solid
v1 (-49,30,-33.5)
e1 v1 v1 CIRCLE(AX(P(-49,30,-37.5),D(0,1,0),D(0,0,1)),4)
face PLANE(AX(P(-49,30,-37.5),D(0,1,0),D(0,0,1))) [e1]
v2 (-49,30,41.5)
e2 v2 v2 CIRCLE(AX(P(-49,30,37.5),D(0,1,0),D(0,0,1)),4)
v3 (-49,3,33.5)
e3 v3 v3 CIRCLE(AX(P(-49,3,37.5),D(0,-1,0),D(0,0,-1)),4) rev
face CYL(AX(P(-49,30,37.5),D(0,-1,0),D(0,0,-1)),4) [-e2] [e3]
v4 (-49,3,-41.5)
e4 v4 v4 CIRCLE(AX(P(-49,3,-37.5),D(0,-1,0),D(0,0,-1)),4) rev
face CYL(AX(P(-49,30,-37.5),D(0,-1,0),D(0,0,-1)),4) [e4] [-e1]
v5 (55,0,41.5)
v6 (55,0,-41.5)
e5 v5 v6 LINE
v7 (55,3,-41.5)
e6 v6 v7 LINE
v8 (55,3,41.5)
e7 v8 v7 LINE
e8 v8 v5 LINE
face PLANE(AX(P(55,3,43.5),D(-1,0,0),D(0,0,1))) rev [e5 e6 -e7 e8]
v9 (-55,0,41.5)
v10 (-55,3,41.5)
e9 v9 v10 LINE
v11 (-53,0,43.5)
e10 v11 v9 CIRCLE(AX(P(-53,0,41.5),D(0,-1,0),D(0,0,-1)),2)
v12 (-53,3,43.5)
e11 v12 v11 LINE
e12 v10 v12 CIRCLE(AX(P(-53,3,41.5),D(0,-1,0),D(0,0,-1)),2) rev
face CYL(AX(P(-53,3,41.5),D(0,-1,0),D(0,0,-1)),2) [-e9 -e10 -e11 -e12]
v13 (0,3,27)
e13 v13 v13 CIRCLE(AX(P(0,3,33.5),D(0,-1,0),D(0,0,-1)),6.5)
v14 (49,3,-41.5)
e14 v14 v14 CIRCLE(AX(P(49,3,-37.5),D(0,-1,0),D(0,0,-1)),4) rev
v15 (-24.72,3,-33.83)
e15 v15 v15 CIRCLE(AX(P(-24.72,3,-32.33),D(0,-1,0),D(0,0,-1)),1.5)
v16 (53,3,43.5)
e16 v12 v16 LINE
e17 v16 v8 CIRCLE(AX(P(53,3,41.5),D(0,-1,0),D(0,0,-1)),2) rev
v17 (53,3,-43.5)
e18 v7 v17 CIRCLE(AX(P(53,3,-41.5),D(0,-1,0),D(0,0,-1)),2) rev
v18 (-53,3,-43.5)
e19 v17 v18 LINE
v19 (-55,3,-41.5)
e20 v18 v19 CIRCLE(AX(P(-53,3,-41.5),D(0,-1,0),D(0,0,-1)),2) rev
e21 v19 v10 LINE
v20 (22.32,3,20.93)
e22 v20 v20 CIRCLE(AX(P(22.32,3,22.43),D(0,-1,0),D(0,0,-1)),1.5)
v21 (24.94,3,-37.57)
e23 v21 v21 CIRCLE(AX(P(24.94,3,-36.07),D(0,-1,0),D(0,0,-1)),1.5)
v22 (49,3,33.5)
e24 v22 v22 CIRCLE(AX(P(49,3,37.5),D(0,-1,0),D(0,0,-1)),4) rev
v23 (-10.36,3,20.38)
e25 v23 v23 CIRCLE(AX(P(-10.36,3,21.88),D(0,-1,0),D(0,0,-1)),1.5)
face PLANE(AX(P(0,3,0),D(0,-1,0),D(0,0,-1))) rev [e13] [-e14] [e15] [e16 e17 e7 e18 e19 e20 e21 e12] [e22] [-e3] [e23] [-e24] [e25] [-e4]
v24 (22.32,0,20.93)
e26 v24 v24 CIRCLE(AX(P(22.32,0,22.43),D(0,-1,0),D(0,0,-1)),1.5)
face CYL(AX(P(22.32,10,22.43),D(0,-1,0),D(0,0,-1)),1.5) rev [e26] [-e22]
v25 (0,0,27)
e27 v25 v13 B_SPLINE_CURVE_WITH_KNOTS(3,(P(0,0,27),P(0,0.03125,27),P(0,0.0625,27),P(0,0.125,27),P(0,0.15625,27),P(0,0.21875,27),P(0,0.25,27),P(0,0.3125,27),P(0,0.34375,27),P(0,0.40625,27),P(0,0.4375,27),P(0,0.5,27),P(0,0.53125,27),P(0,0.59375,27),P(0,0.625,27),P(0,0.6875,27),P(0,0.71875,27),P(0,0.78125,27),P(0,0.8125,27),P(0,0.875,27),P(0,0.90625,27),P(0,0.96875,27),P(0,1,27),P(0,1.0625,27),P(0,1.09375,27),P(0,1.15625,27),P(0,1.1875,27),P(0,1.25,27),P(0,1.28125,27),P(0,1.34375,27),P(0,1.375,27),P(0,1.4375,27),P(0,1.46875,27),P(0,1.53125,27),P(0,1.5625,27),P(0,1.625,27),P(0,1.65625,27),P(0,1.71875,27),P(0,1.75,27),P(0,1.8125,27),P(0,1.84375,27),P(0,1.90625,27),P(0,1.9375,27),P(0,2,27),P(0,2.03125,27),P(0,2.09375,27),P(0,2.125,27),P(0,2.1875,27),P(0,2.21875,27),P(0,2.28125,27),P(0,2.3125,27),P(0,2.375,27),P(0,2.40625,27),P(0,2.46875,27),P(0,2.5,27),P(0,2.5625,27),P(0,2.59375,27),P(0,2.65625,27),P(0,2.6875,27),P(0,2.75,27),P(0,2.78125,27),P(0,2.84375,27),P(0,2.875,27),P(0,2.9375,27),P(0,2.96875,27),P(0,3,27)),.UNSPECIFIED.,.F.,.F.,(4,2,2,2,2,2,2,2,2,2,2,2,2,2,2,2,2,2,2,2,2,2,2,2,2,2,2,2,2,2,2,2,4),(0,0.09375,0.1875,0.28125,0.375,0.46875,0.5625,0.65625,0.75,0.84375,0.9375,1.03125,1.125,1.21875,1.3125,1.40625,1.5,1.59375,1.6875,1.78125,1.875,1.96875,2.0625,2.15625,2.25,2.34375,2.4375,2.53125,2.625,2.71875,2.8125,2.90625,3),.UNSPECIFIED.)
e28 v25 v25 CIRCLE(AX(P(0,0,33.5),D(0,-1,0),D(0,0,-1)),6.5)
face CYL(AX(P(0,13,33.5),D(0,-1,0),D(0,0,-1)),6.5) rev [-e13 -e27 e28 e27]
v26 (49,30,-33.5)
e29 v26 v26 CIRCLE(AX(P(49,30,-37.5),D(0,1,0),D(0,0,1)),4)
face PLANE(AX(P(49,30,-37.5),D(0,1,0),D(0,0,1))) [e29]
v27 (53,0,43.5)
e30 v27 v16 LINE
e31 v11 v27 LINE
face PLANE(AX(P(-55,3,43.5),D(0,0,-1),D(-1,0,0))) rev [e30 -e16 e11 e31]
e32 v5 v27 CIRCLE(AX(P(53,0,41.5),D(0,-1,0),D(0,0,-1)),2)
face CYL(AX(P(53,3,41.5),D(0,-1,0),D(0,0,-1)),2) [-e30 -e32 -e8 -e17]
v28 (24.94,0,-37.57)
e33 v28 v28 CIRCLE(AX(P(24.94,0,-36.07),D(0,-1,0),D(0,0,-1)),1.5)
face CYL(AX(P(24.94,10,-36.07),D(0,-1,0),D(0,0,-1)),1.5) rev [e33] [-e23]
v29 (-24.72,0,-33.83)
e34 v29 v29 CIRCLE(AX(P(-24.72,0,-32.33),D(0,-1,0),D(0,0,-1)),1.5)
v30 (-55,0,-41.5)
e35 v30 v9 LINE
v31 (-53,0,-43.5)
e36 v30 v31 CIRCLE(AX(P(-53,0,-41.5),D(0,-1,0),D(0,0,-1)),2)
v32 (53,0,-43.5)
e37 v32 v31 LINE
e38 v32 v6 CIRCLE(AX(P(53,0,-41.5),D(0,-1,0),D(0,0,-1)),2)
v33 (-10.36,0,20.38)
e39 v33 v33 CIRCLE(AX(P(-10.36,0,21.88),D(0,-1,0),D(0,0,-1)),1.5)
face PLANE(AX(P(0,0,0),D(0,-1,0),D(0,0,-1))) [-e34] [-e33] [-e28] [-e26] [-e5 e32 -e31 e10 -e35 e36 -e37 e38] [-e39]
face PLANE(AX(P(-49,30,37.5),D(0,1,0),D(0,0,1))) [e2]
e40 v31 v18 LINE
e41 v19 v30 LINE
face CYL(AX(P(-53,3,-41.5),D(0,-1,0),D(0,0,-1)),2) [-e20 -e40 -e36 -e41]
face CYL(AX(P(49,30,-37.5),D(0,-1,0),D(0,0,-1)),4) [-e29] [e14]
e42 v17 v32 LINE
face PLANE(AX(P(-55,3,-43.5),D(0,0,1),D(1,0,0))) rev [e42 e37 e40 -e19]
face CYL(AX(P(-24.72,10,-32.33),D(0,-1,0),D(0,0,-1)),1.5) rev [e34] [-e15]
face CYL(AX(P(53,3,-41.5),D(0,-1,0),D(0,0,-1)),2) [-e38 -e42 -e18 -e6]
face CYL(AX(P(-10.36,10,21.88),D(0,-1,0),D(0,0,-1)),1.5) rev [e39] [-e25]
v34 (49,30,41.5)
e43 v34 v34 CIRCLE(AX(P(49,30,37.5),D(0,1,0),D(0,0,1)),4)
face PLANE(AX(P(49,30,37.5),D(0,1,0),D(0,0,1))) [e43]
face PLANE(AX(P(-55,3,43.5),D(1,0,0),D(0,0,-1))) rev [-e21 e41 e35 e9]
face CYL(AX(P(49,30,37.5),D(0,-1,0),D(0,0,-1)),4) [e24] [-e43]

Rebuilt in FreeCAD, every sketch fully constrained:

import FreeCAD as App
import Part
import Sketcher
from FreeCAD import Vector


def edges_at(feature, points):
    """Names of the edges that pass closest to the given points."""
    edges = feature.Shape.Edges
    near = lambda p: min(range(len(edges)), key=lambda i: edges[i].distToShape(Part.Vertex(*p))[0])
    return sorted({f"Edge{near(p) + 1}" for p in points})

doc = App.newDocument("Part")
body = doc.addObject("PartDesign::Body", "Body")

# Sketch on XZ plane
sketch1 = body.newObject("Sketcher::SketchObject", "Sketch")
sketch1.AttachmentSupport = (doc.getObject("XZ_Plane"), [""])
sketch1.MapMode = "FlatFace"
sketch1.addGeometry([
    Part.LineSegment(Vector(-55, -44, 0), Vector(-55, 44, 0)),
    Part.LineSegment(Vector(-55, 44, 0), Vector(55, 44, 0)),
    Part.LineSegment(Vector(55, 44, 0), Vector(55, -44, 0)),
    Part.LineSegment(Vector(55, -44, 0), Vector(-55, -44, 0)),
], False)
sketch1.addConstraint([
    Sketcher.Constraint("Coincident", 0, 2, 1, 1),
    Sketcher.Constraint("Coincident", 1, 2, 2, 1),
    Sketcher.Constraint("Coincident", 2, 2, 3, 1),
    Sketcher.Constraint("Coincident", 3, 2, 0, 1),
    Sketcher.Constraint("Vertical", 0),
    Sketcher.Constraint("Horizontal", 1),
    Sketcher.Constraint("Vertical", 2),
    Sketcher.Constraint("Horizontal", 3),
    Sketcher.Constraint("Symmetric", 0, 2, 2, 2, -1, 1),
    Sketcher.Constraint("DistanceX", 1, 1, 1, 2, 110.0),
    Sketcher.Constraint("DistanceY", 0, 1, 0, 2, 87.0),
])
pad1 = body.newObject("PartDesign::Pad", "Pad")
pad1.Profile = sketch1
pad1.Length = 3
pad1.Reversed = True
doc.recompute()

fillet = body.newObject("PartDesign::Fillet", "Fillet")
fillet.Base = (pad1, edges_at(pad1, [
    (55, 1.5, 43.5),
    (-55, 1.5, 43.5),
    (-55, 1.5, -43.5),
    (55, 1.5, -43.5),
]))
fillet.Radius = 2

# Sketch on XZ plane
sketch2 = body.newObject("Sketcher::SketchObject", "Sketch001")
sketch2.AttachmentSupport = (doc.getObject("XZ_Plane"), [""])
sketch2.MapMode = "FlatFace"
sketch2.AttachmentOffset = App.Placement(Vector(0, 0, -3), App.Rotation())
sketch2.addGeometry([
    Part.Circle(Vector(-49, -37.5, 0), Vector(0, 0, 1), 4),
    Part.Circle(Vector(49, -37.5, 0), Vector(0, 0, 1), 4),
    Part.Circle(Vector(49, 37.5, 0), Vector(0, 0, 1), 4),
    Part.Circle(Vector(-49, 37.5, 0), Vector(0, 0, 1), 4),
], False)
sketch2.addConstraint([
    Sketcher.Constraint("Equal", 0, 1),
    Sketcher.Constraint("Equal", 1, 2),
    Sketcher.Constraint("Equal", 2, 3),
    Sketcher.Constraint("Symmetric", 0, 3, 2, 3, -1, 1),
    Sketcher.Constraint("Symmetric", 1, 3, 3, 3, -1, 1),
    Sketcher.Constraint("Symmetric", 0, 3, 1, 3, -2),
    Sketcher.Constraint("Diameter", 0, 8.0),
    Sketcher.Constraint("DistanceX", 0, 3, -1, 1, 49.0),
    Sketcher.Constraint("DistanceY", 1, 3, 2, 3, 75.0),
])
pad2 = body.newObject("PartDesign::Pad", "Pad001")
pad2.Profile = sketch2
pad2.Length = 27
pad2.Reversed = True

# Sketch on XZ plane
sketch3 = body.newObject("Sketcher::SketchObject", "Sketch002")
sketch3.AttachmentSupport = (doc.getObject("XZ_Plane"), [""])
sketch3.MapMode = "FlatFace"
sketch3.addGeometry(Part.Circle(Vector(0, 34, 0), Vector(0, 0, 1), 6), False)
sketch3.addConstraint([
    Sketcher.Constraint("PointOnObject", 0, 3, -2),
    Sketcher.Constraint("Diameter", 0, 13.0),
    Sketcher.Constraint("DistanceY", -1, 1, 0, 3, 33.5),
])
pocket1 = body.newObject("PartDesign::Pocket", "Pocket")
pocket1.Profile = sketch3
pocket1.Length = 13

# Sketch on XZ plane
sketch4 = body.newObject("Sketcher::SketchObject", "Sketch003")
sketch4.AttachmentSupport = (doc.getObject("XZ_Plane"), [""])
sketch4.MapMode = "FlatFace"
sketch4.addGeometry([
    Part.Circle(Vector(22.3, 22.4, 0), Vector(0, 0, 1), 1.5),
    Part.Circle(Vector(-10.4, 21.9, 0), Vector(0, 0, 1), 1.5),
    Part.Circle(Vector(24.9, -36.1, 0), Vector(0, 0, 1), 1.5),
    Part.Circle(Vector(-24.7, -32.3, 0), Vector(0, 0, 1), 1.5),
], False)
sketch4.addConstraint([
    Sketcher.Constraint("Equal", 0, 1),
    Sketcher.Constraint("Equal", 1, 2),
    Sketcher.Constraint("Equal", 2, 3),
    Sketcher.Constraint("Diameter", 0, 3.0),
    Sketcher.Constraint("DistanceY", 2, 3, 0, 3, 58.5),
    Sketcher.Constraint("DistanceX", 1, 3, 2, 3, 35.3),
    Sketcher.Constraint("DistanceX", -1, 1, 0, 3, 22.32),
    Sketcher.Constraint("DistanceY", -1, 1, 0, 3, 22.43),
    Sketcher.Constraint("DistanceX", 1, 3, -1, 1, 10.36),
    Sketcher.Constraint("DistanceY", -1, 1, 1, 3, 21.88),
    Sketcher.Constraint("DistanceX", 3, 3, -1, 1, 24.72),
    Sketcher.Constraint("DistanceY", 3, 3, -1, 1, 32.33),
])
pocket2 = body.newObject("PartDesign::Pocket", "Pocket001")
pocket2.Profile = sketch4
pocket2.Length = 10

doc.recompute()
